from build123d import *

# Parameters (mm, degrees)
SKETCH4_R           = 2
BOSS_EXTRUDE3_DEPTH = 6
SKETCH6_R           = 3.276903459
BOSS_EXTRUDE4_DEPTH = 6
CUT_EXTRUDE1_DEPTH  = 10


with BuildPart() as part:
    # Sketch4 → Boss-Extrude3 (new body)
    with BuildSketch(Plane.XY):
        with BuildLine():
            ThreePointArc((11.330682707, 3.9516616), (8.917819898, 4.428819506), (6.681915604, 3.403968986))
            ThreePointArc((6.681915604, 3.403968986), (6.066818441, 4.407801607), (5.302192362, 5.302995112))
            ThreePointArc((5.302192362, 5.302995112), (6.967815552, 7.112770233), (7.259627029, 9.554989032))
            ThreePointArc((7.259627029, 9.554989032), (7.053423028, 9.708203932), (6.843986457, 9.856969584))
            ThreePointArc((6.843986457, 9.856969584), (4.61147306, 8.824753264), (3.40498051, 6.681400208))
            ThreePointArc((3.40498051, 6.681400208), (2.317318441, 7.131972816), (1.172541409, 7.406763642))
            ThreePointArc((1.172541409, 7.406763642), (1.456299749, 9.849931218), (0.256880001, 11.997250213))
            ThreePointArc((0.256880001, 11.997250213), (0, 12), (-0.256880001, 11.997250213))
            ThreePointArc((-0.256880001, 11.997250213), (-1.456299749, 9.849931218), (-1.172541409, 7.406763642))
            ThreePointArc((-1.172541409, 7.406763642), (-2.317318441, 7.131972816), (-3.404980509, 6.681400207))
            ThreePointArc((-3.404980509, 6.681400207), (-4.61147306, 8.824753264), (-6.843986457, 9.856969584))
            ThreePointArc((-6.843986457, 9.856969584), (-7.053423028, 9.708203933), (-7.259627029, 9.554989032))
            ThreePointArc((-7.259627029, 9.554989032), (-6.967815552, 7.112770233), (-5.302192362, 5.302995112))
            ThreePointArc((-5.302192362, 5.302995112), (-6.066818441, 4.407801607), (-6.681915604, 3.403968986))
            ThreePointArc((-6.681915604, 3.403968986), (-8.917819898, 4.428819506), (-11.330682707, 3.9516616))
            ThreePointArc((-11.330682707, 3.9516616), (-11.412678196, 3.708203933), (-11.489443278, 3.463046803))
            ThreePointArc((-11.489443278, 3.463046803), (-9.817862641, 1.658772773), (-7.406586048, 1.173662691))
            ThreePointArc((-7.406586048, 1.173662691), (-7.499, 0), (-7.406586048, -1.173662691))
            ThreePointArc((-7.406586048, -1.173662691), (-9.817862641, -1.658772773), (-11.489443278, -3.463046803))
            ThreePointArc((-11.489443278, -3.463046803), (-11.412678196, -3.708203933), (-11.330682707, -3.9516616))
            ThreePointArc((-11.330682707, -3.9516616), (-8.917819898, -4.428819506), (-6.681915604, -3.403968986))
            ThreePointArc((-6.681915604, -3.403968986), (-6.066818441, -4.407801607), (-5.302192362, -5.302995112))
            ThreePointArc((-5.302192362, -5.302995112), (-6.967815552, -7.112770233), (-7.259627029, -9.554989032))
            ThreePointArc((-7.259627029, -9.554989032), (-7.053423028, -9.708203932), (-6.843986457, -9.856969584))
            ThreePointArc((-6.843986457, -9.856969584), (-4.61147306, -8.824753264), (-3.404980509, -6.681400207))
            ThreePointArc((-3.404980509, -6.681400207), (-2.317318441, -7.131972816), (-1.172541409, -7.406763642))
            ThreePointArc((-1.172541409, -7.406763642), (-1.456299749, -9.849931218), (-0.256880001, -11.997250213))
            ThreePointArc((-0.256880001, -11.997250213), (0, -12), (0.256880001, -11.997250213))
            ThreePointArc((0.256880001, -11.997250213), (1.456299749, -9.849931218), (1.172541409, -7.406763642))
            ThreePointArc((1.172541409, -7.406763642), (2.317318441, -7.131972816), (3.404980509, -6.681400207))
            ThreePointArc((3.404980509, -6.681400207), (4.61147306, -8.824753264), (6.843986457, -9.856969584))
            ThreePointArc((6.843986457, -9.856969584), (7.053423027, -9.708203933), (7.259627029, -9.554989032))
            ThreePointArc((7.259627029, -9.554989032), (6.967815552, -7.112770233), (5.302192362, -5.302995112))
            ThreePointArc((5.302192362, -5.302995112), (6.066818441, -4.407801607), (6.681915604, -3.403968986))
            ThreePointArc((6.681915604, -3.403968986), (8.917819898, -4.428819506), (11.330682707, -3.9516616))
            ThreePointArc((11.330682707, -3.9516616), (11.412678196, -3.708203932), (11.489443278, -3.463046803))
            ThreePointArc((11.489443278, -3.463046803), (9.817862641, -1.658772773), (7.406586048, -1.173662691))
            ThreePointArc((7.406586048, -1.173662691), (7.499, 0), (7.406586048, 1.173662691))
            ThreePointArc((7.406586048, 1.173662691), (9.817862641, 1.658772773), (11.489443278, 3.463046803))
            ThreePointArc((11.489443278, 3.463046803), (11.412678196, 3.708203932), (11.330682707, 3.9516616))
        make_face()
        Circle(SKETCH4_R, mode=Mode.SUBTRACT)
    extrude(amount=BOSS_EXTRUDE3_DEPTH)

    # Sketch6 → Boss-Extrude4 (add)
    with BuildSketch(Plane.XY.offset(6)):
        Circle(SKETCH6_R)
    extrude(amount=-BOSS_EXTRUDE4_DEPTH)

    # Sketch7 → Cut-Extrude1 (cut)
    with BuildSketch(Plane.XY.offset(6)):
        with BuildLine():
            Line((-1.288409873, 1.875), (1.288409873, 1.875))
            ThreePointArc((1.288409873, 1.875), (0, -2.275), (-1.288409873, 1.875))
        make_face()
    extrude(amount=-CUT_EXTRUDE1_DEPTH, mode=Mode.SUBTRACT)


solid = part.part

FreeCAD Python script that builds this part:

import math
import FreeCAD as App
import Part
import Sketcher
from FreeCAD import Vector

doc = App.newDocument("Part")
body = doc.addObject("PartDesign::Body", "Body")

# Sketch on XY plane
sketch1 = doc.addObject("Sketcher::SketchObject", "Sketch")
body.addObject(sketch1)
sketch1.AttachmentSupport = (doc.XY_Plane, [""])
sketch1.MapMode = "FlatFace"
sketch1.addGeometry(Part.ArcOfCircle(Part.Circle(Vector(9.4, 0.5, 0), Vector(0, 0, 1), 4), math.radians(61), math.radians(133)), False)
sketch1.addGeometry(Part.ArcOfCircle(Part.Circle(Vector(0, 0, 0), Vector(0, 0, 1), 7.5), math.radians(27), math.radians(45)), False)
sketch1.addGeometry(Part.ArcOfCircle(Part.Circle(Vector(3.3, 8.8, 0), Vector(0, 0, 1), 4), math.radians(-61), math.radians(11)), False)
sketch1.addGeometry(Part.ArcOfCircle(Part.Circle(Vector(0, 0, 0), Vector(0, 0, 1), 12), math.radians(52.77), math.radians(55.23)), False)
sketch1.addGeometry(Part.ArcOfCircle(Part.Circle(Vector(7.3, 5.9, 0), Vector(0, 0, 1), 4), math.radians(97), math.radians(169)), False)
sketch1.addGeometry(Part.ArcOfCircle(Part.Circle(Vector(0, 0, 0), Vector(0, 0, 1), 7.5), math.radians(63), math.radians(81)), False)
sketch1.addGeometry(Part.ArcOfCircle(Part.Circle(Vector(-2.5, 9.1, 0), Vector(0, 0, 1), 4), math.radians(-25), math.radians(47)), False)
sketch1.addGeometry(Part.ArcOfCircle(Part.Circle(Vector(0, 0, 0), Vector(0, 0, 1), 12), math.radians(88.77), math.radians(91.23)), False)
sketch1.addGeometry(Part.ArcOfCircle(Part.Circle(Vector(2.5, 9.1, 0), Vector(0, 0, 1), 4), math.radians(133), math.radians(205)), False)
sketch1.addGeometry(Part.ArcOfCircle(Part.Circle(Vector(0, 0, 0), Vector(0, 0, 1), 7.5), math.radians(99), math.radians(117)), False)
sketch1.addGeometry(Part.ArcOfCircle(Part.Circle(Vector(-7.3, 5.9, 0), Vector(0, 0, 1), 4), math.radians(11), math.radians(83)), False)
sketch1.addGeometry(Part.ArcOfCircle(Part.Circle(Vector(0, 0, 0), Vector(0, 0, 1), 12), math.radians(124.77), math.radians(127.23)), False)
sketch1.addGeometry(Part.ArcOfCircle(Part.Circle(Vector(-3.3, 8.8, 0), Vector(0, 0, 1), 4), math.radians(169), math.radians(241)), False)
sketch1.addGeometry(Part.ArcOfCircle(Part.Circle(Vector(0, 0, 0), Vector(0, 0, 1), 7.5), math.radians(135), math.radians(153)), False)
sketch1.addGeometry(Part.ArcOfCircle(Part.Circle(Vector(-9.4, 0.5, 0), Vector(0, 0, 1), 4), math.radians(47), math.radians(119)), False)
sketch1.addGeometry(Part.ArcOfCircle(Part.Circle(Vector(0, 0, 0), Vector(0, 0, 1), 12), math.radians(160.77), math.radians(163.23)), False)
sketch1.addGeometry(Part.ArcOfCircle(Part.Circle(Vector(-7.9, 5.1, 0), Vector(0, 0, 1), 4), math.radians(-155), math.radians(-83)), False)
sketch1.addGeometry(Part.ArcOfCircle(Part.Circle(Vector(0, 0, 0), Vector(0, 0, 1), 7.5), math.radians(171), math.radians(189)), False)
sketch1.addGeometry(Part.ArcOfCircle(Part.Circle(Vector(-7.9, -5.1, 0), Vector(0, 0, 1), 4), math.radians(83), math.radians(155)), False)
sketch1.addGeometry(Part.ArcOfCircle(Part.Circle(Vector(0, 0, 0), Vector(0, 0, 1), 12), math.radians(-163.23), math.radians(-160.77)), False)
sketch1.addGeometry(Part.ArcOfCircle(Part.Circle(Vector(-9.4, -0.5, 0), Vector(0, 0, 1), 4), math.radians(-119), math.radians(-47)), False)
sketch1.addGeometry(Part.ArcOfCircle(Part.Circle(Vector(0, 0, 0), Vector(0, 0, 1), 7.5), math.radians(-153), math.radians(-135)), False)
sketch1.addGeometry(Part.ArcOfCircle(Part.Circle(Vector(-3.3, -8.8, 0), Vector(0, 0, 1), 4), math.radians(119), math.radians(191)), False)
sketch1.addGeometry(Part.ArcOfCircle(Part.Circle(Vector(0, 0, 0), Vector(0, 0, 1), 12), math.radians(-127.23), math.radians(-124.77)), False)
sketch1.addGeometry(Part.ArcOfCircle(Part.Circle(Vector(-7.3, -5.9, 0), Vector(0, 0, 1), 4), math.radians(-83), math.radians(-11)), False)
sketch1.addGeometry(Part.ArcOfCircle(Part.Circle(Vector(0, 0, 0), Vector(0, 0, 1), 7.5), math.radians(-117), math.radians(-99)), False)
sketch1.addGeometry(Part.ArcOfCircle(Part.Circle(Vector(2.5, -9.1, 0), Vector(0, 0, 1), 4), math.radians(155), math.radians(227)), False)
sketch1.addGeometry(Part.ArcOfCircle(Part.Circle(Vector(0, 0, 0), Vector(0, 0, 1), 12), math.radians(-91.23), math.radians(-88.77)), False)
sketch1.addGeometry(Part.ArcOfCircle(Part.Circle(Vector(-2.5, -9.1, 0), Vector(0, 0, 1), 4), math.radians(-47), math.radians(25)), False)
sketch1.addGeometry(Part.ArcOfCircle(Part.Circle(Vector(0, 0, 0), Vector(0, 0, 1), 7.5), math.radians(-81), math.radians(-63)), False)
sketch1.addGeometry(Part.ArcOfCircle(Part.Circle(Vector(7.3, -5.9, 0), Vector(0, 0, 1), 4), math.radians(-169), math.radians(-97)), False)
sketch1.addGeometry(Part.ArcOfCircle(Part.Circle(Vector(0, 0, 0), Vector(0, 0, 1), 12), math.radians(-55.23), math.radians(-52.77)), False)
sketch1.addGeometry(Part.ArcOfCircle(Part.Circle(Vector(3.3, -8.8, 0), Vector(0, 0, 1), 4), math.radians(-11), math.radians(61)), False)
sketch1.addGeometry(Part.ArcOfCircle(Part.Circle(Vector(0, 0, 0), Vector(0, 0, 1), 7.5), math.radians(-45), math.radians(-27)), False)
sketch1.addGeometry(Part.ArcOfCircle(Part.Circle(Vector(9.4, -0.5, 0), Vector(0, 0, 1), 4), math.radians(-133), math.radians(-61)), False)
sketch1.addGeometry(Part.ArcOfCircle(Part.Circle(Vector(0, 0, 0), Vector(0, 0, 1), 12), math.radians(-19.23), math.radians(-16.77)), False)
sketch1.addGeometry(Part.ArcOfCircle(Part.Circle(Vector(7.9, -5.1, 0), Vector(0, 0, 1), 4), math.radians(25), math.radians(97)), False)
sketch1.addGeometry(Part.ArcOfCircle(Part.Circle(Vector(0, 0, 0), Vector(0, 0, 1), 7.5), math.radians(-9), math.radians(9)), False)
sketch1.addGeometry(Part.ArcOfCircle(Part.Circle(Vector(7.9, 5.1, 0), Vector(0, 0, 1), 4), math.radians(-97), math.radians(-25)), False)
sketch1.addGeometry(Part.ArcOfCircle(Part.Circle(Vector(0, 0, 0), Vector(0, 0, 1), 12), math.radians(16.77), math.radians(19.23)), False)
sketch1.addGeometry(Part.Circle(Vector(0, 0, 0), Vector(0, 0, 1), 2), False)
sketch1.addConstraint(Sketcher.Constraint("Coincident", 0, 2, 1, 1))
sketch1.addConstraint(Sketcher.Constraint("Coincident", 1, 2, 2, 1))
sketch1.addConstraint(Sketcher.Constraint("Coincident", 2, 2, 3, 1))
sketch1.addConstraint(Sketcher.Constraint("Coincident", 3, 2, 4, 1))
sketch1.addConstraint(Sketcher.Constraint("Coincident", 4, 2, 5, 1))
sketch1.addConstraint(Sketcher.Constraint("Coincident", 5, 2, 6, 1))
sketch1.addConstraint(Sketcher.Constraint("Coincident", 6, 2, 7, 1))
sketch1.addConstraint(Sketcher.Constraint("Coincident", 7, 2, 8, 1))
sketch1.addConstraint(Sketcher.Constraint("Coincident", 8, 2, 9, 1))
sketch1.addConstraint(Sketcher.Constraint("Coincident", 9, 2, 10, 1))
sketch1.addConstraint(Sketcher.Constraint("Coincident", 10, 2, 11, 1))
sketch1.addConstraint(Sketcher.Constraint("Coincident", 11, 2, 12, 1))
sketch1.addConstraint(Sketcher.Constraint("Coincident", 12, 2, 13, 1))
sketch1.addConstraint(Sketcher.Constraint("Coincident", 13, 2, 14, 1))
sketch1.addConstraint(Sketcher.Constraint("Coincident", 14, 2, 15, 1))
sketch1.addConstraint(Sketcher.Constraint("Coincident", 15, 2, 16, 1))
sketch1.addConstraint(Sketcher.Constraint("Coincident", 16, 2, 17, 1))
sketch1.addConstraint(Sketcher.Constraint("Coincident", 17, 2, 18, 1))
sketch1.addConstraint(Sketcher.Constraint("Coincident", 18, 2, 19, 1))
sketch1.addConstraint(Sketcher.Constraint("Coincident", 19, 2, 20, 1))
sketch1.addConstraint(Sketcher.Constraint("Coincident", 20, 2, 21, 1))
sketch1.addConstraint(Sketcher.Constraint("Coincident", 21, 2, 22, 1))
sketch1.addConstraint(Sketcher.Constraint("Coincident", 22, 2, 23, 1))
sketch1.addConstraint(Sketcher.Constraint("Coincident", 23, 2, 24, 1))
sketch1.addConstraint(Sketcher.Constraint("Coincident", 24, 2, 25, 1))
sketch1.addConstraint(Sketcher.Constraint("Coincident", 25, 2, 26, 1))
sketch1.addConstraint(Sketcher.Constraint("Coincident", 26, 2, 27, 1))
sketch1.addConstraint(Sketcher.Constraint("Coincident", 27, 2, 28, 1))
sketch1.addConstraint(Sketcher.Constraint("Coincident", 28, 2, 29, 1))
sketch1.addConstraint(Sketcher.Constraint("Coincident", 29, 2, 30, 1))
sketch1.addConstraint(Sketcher.Constraint("Coincident", 30, 2, 31, 1))
sketch1.addConstraint(Sketcher.Constraint("Coincident", 31, 2, 32, 1))
sketch1.addConstraint(Sketcher.Constraint("Coincident", 32, 2, 33, 1))
sketch1.addConstraint(Sketcher.Constraint("Coincident", 33, 2, 34, 1))
sketch1.addConstraint(Sketcher.Constraint("Coincident", 34, 2, 35, 1))
sketch1.addConstraint(Sketcher.Constraint("Coincident", 35, 2, 36, 1))
sketch1.addConstraint(Sketcher.Constraint("Coincident", 36, 2, 37, 1))
sketch1.addConstraint(Sketcher.Constraint("Coincident", 37, 2, 38, 1))
sketch1.addConstraint(Sketcher.Constraint("Coincident", 38, 2, 39, 1))
sketch1.addConstraint(Sketcher.Constraint("Coincident", 39, 2, 0, 1))
sketch1.addConstraint(Sketcher.Constraint("Coincident", 1, 3, -1, 1))
sketch1.addConstraint(Sketcher.Constraint("Coincident", 3, 3, -1, 1))
sketch1.addConstraint(Sketcher.Constraint("Coincident", 5, 3, -1, 1))
sketch1.addConstraint(Sketcher.Constraint("Coincident", 7, 3, -1, 1))
sketch1.addConstraint(Sketcher.Constraint("Coincident", 9, 3, -1, 1))
sketch1.addConstraint(Sketcher.Constraint("Coincident", 11, 3, -1, 1))
sketch1.addConstraint(Sketcher.Constraint("Coincident", 13, 3, -1, 1))
sketch1.addConstraint(Sketcher.Constraint("Coincident", 15, 3, -1, 1))
sketch1.addConstraint(Sketcher.Constraint("Coincident", 17, 3, -1, 1))
sketch1.addConstraint(Sketcher.Constraint("Coincident", 19, 3, -1, 1))
sketch1.addConstraint(Sketcher.Constraint("Coincident", 21, 3, -1, 1))
sketch1.addConstraint(Sketcher.Constraint("Coincident", 23, 3, -1, 1))
sketch1.addConstraint(Sketcher.Constraint("Coincident", 25, 3, -1, 1))
sketch1.addConstraint(Sketcher.Constraint("Coincident", 27, 3, -1, 1))
sketch1.addConstraint(Sketcher.Constraint("Coincident", 29, 3, -1, 1))
sketch1.addConstraint(Sketcher.Constraint("Coincident", 31, 3, -1, 1))
sketch1.addConstraint(Sketcher.Constraint("Coincident", 33, 3, -1, 1))
sketch1.addConstraint(Sketcher.Constraint("Coincident", 35, 3, -1, 1))
sketch1.addConstraint(Sketcher.Constraint("Coincident", 37, 3, -1, 1))
sketch1.addConstraint(Sketcher.Constraint("Coincident", 39, 3, -1, 1))
sketch1.addConstraint(Sketcher.Constraint("Coincident", 40, 3, -1, 1))
sketch1.addConstraint(Sketcher.Constraint("Equal", 0, 2))
sketch1.addConstraint(Sketcher.Constraint("Equal", 2, 4))
sketch1.addConstraint(Sketcher.Constraint("Equal", 1, 5))
sketch1.addConstraint(Sketcher.Constraint("Equal", 4, 6))
sketch1.addConstraint(Sketcher.Constraint("Equal", 3, 7))
sketch1.addConstraint(Sketcher.Constraint("Equal", 6, 8))
sketch1.addConstraint(Sketcher.Constraint("Equal", 5, 9))
sketch1.addConstraint(Sketcher.Constraint("Equal", 8, 10))
sketch1.addConstraint(Sketcher.Constraint("Equal", 10, 12))
sketch1.addConstraint(Sketcher.Constraint("Equal", 9, 13))
sketch1.addConstraint(Sketcher.Constraint("Equal", 12, 14))
sketch1.addConstraint(Sketcher.Constraint("Equal", 11, 15))
sketch1.addConstraint(Sketcher.Constraint("Equal", 14, 16))
sketch1.addConstraint(Sketcher.Constraint("Equal", 13, 17))
sketch1.addConstraint(Sketcher.Constraint("Equal", 16, 18))
sketch1.addConstraint(Sketcher.Constraint("Equal", 15, 19))
sketch1.addConstraint(Sketcher.Constraint("Equal", 18, 20))
sketch1.addConstraint(Sketcher.Constraint("Equal", 17, 21))
sketch1.addConstraint(Sketcher.Constraint("Equal", 20, 22))
sketch1.addConstraint(Sketcher.Constraint("Equal", 7, 23))
sketch1.addConstraint(Sketcher.Constraint("Equal", 22, 24))
sketch1.addConstraint(Sketcher.Constraint("Equal", 21, 25))
sketch1.addConstraint(Sketcher.Constraint("Equal", 24, 26))
sketch1.addConstraint(Sketcher.Constraint("Equal", 23, 27))
sketch1.addConstraint(Sketcher.Constraint("Equal", 26, 28))
sketch1.addConstraint(Sketcher.Constraint("Equal", 25, 29))
sketch1.addConstraint(Sketcher.Constraint("Equal", 28, 30))
sketch1.addConstraint(Sketcher.Constraint("Equal", 27, 31))
sketch1.addConstraint(Sketcher.Constraint("Equal", 30, 32))
sketch1.addConstraint(Sketcher.Constraint("Equal", 29, 33))
sketch1.addConstraint(Sketcher.Constraint("Equal", 32, 34))
sketch1.addConstraint(Sketcher.Constraint("Equal", 31, 35))
sketch1.addConstraint(Sketcher.Constraint("Equal", 34, 36))
sketch1.addConstraint(Sketcher.Constraint("Equal", 33, 37))
sketch1.addConstraint(Sketcher.Constraint("Equal", 36, 38))
sketch1.addConstraint(Sketcher.Constraint("Equal", 35, 39))
sketch1.addConstraint(Sketcher.Constraint("Symmetric", 0, 3, 20, 3, -1, 1))
sketch1.addConstraint(Sketcher.Constraint("Symmetric", 2, 3, 22, 3, -1, 1))
sketch1.addConstraint(Sketcher.Constraint("Symmetric", 4, 3, 24, 3, -1, 1))
sketch1.addConstraint(Sketcher.Constraint("Symmetric", 6, 3, 26, 3, -1, 1))
sketch1.addConstraint(Sketcher.Constraint("Symmetric", 8, 3, 28, 3, -1, 1))
sketch1.addConstraint(Sketcher.Constraint("Symmetric", 10, 3, 30, 3, -1, 1))
sketch1.addConstraint(Sketcher.Constraint("Symmetric", 12, 3, 32, 3, -1, 1))
sketch1.addConstraint(Sketcher.Constraint("Symmetric", 14, 3, 34, 3, -1, 1))
sketch1.addConstraint(Sketcher.Constraint("Symmetric", 16, 3, 36, 3, -1, 1))
sketch1.addConstraint(Sketcher.Constraint("Symmetric", 18, 3, 38, 3, -1, 1))
sketch1.addConstraint(Sketcher.Constraint("Symmetric", 6, 3, 8, 3, -2))
sketch1.addConstraint(Sketcher.Constraint("Symmetric", 4, 3, 10, 3, -2))
sketch1.addConstraint(Sketcher.Constraint("Symmetric", 2, 3, 12, 3, -2))
sketch1.addConstraint(Sketcher.Constraint("Symmetric", 0, 3, 14, 3, -2))
sketch1.addConstraint(Sketcher.Constraint("Symmetric", 18, 3, 36, 3, -2))
sketch1.addConstraint(Sketcher.Constraint("Horizontal", 3, 2, 10, 2))
sketch1.addConstraint(Sketcher.Constraint("Diameter", 40, 4.0))
sketch1.addConstraint(Sketcher.Constraint("Radius", 0, 4.0))
sketch1.addConstraint(Sketcher.Constraint("Radius", 3, 12.000001))
sketch1.addConstraint(Sketcher.Constraint("Radius", 1, 7.499))
sketch1.addConstraint(Sketcher.Constraint("DistanceY", -1, 1, 4, 2, 6.6814))
sketch1.addConstraint(Sketcher.Constraint("DistanceX", -1, 1, 0, 3, 9.385841))
sketch1.addConstraint(Sketcher.Constraint("DistanceY", -1, 1, 4, 3, 5.886009))
sketch1.addConstraint(Sketcher.Constraint("DistanceY", -1, 1, 6, 3, 9.067468))
sketch1.addConstraint(Sketcher.Constraint("DistanceX", 16, 3, -1, 1, 7.861508))
sketch1.addConstraint(Sketcher.Constraint("DistanceY", -1, 1, 16, 3, 5.147709))
sketch1.addConstraint(Sketcher.Constraint("DistanceY", -1, 1, 0, 2, 3.403969))
sketch1.addConstraint(Sketcher.Constraint("DistanceY", -1, 1, 2, 2, 9.554989))
sketch1.addConstraint(Sketcher.Constraint("DistanceX", -1, 1, 5, 2, 1.172541))
sketch1.addConstraint(Sketcher.Constraint("DistanceX", -1, 1, 2, 3, 3.334346))
pad1 = doc.addObject("PartDesign::Pad", "Pad")
body.addObject(pad1)
pad1.Profile = sketch1
pad1.Length = 6

# Sketch on XY plane
sketch2 = doc.addObject("Sketcher::SketchObject", "Sketch001")
body.addObject(sketch2)
sketch2.AttachmentSupport = (doc.XY_Plane, [""])
sketch2.MapMode = "FlatFace"
sketch2.AttachmentOffset = App.Placement(Vector(0, 0, 6), App.Rotation())
sketch2.addGeometry(Part.Circle(Vector(0, 0, 0), Vector(0, 0, 1), 3.3), False)
sketch2.addConstraint(Sketcher.Constraint("Coincident", 0, 3, -1, 1))
sketch2.addConstraint(Sketcher.Constraint("Diameter", 0, 6.553807))
pad2 = doc.addObject("PartDesign::Pad", "Pad001")
body.addObject(pad2)
pad2.Profile = sketch2
pad2.Length = 6
pad2.Reversed = True

# Sketch on XY plane
sketch3 = doc.addObject("Sketcher::SketchObject", "Sketch002")
body.addObject(sketch3)
sketch3.AttachmentSupport = (doc.XY_Plane, [""])
sketch3.MapMode = "FlatFace"
sketch3.AttachmentOffset = App.Placement(Vector(0, 0, 6), App.Rotation())
sketch3.addGeometry(Part.LineSegment(Vector(1.3, 1.9, 0), Vector(-1.3, 1.9, 0)), False)
sketch3.addGeometry(Part.ArcOfCircle(Part.Circle(Vector(0, 0, 0), Vector(0, 0, 1), 2.3), math.radians(124), math.radians(416)), False)
sketch3.addConstraint(Sketcher.Constraint("Coincident", 0, 1, 1, 2))
sketch3.addConstraint(Sketcher.Constraint("Coincident", 1, 1, 0, 2))
sketch3.addConstraint(Sketcher.Constraint("Horizontal", 0))
sketch3.addConstraint(Sketcher.Constraint("Coincident", 1, 3, -1, 1))
sketch3.addConstraint(Sketcher.Constraint("Radius", 1, 2.275))
sketch3.addConstraint(Sketcher.Constraint("DistanceY", -1, 1, 0, 1, 1.875))
pocket1 = doc.addObject("PartDesign::Pocket", "Pocket")
body.addObject(pocket1)
pocket1.Profile = sketch3
pocket1.Length = 10

doc.recompute()
